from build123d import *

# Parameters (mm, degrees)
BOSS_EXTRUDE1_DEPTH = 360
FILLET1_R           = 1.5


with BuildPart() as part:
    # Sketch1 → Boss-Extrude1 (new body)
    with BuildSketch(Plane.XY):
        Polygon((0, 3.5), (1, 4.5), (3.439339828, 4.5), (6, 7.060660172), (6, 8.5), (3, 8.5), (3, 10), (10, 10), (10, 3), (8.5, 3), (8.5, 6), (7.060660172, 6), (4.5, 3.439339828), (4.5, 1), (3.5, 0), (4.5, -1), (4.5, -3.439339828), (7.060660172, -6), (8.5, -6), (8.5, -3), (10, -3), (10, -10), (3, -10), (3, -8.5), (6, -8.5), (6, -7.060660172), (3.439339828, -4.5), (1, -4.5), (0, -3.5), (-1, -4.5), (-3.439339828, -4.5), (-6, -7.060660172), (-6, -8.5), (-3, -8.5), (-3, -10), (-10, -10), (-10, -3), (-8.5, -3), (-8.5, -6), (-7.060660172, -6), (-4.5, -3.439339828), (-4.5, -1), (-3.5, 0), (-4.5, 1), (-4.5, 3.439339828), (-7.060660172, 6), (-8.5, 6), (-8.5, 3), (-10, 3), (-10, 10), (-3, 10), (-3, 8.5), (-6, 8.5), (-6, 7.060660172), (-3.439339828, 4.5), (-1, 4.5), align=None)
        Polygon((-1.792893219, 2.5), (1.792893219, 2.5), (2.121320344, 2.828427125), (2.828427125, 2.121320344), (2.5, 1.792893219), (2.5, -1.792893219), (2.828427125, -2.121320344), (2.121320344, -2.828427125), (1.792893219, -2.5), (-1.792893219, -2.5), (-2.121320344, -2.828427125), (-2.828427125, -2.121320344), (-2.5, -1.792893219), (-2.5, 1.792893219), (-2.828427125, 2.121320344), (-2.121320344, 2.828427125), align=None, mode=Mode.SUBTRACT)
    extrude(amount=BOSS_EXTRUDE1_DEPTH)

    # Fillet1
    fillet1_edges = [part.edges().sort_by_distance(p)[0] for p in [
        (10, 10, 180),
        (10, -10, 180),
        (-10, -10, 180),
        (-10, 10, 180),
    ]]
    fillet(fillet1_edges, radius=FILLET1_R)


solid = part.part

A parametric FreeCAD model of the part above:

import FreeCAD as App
import Part
import Sketcher
Q = App.Units.Quantity


def edges_at(feature, points):
    """Names of the edges that pass closest to the given points."""
    edges = feature.Shape.Edges
    near = lambda p: min(range(len(edges)), key=lambda i: edges[i].distToShape(Part.Vertex(*p))[0])
    return sorted({f"Edge{near(p) + 1}" for p in points})

doc = App.newDocument("Part")
body = doc.addObject("PartDesign::Body", "Body")

sketch1 = doc.addObject("Sketcher::SketchObject", "Sketch")
body.addObject(sketch1)
sketch1.AttachmentSupport = (doc.XY_Plane, [""])
sketch1.MapMode = "FlatFace"
sketch1.addGeometry(Part.LineSegment(App.Vector(1, 4.5, 0), App.Vector(0, 3.5, 0)), False)
sketch1.addGeometry(Part.LineSegment(App.Vector(0, 3.5, 0), App.Vector(-1, 4.5, 0)), False)
sketch1.addGeometry(Part.LineSegment(App.Vector(-1, 4.5, 0), App.Vector(-3.44, 4.5, 0)), False)
sketch1.addGeometry(Part.LineSegment(App.Vector(-3.44, 4.5, 0), App.Vector(-6, 7.06, 0)), False)
sketch1.addGeometry(Part.LineSegment(App.Vector(-6, 7.06, 0), App.Vector(-6, 8.5, 0)), False)
sketch1.addGeometry(Part.LineSegment(App.Vector(-6, 8.5, 0), App.Vector(-3, 8.5, 0)), False)
sketch1.addGeometry(Part.LineSegment(App.Vector(-3, 8.5, 0), App.Vector(-3, 10, 0)), False)
sketch1.addGeometry(Part.LineSegment(App.Vector(-3, 10, 0), App.Vector(-10, 10, 0)), False)
sketch1.addGeometry(Part.LineSegment(App.Vector(-10, 10, 0), App.Vector(-10, 3, 0)), False)
sketch1.addGeometry(Part.LineSegment(App.Vector(-10, 3, 0), App.Vector(-8.5, 3, 0)), False)
sketch1.addGeometry(Part.LineSegment(App.Vector(-8.5, 3, 0), App.Vector(-8.5, 6, 0)), False)
sketch1.addGeometry(Part.LineSegment(App.Vector(-8.5, 6, 0), App.Vector(-7.06, 6, 0)), False)
sketch1.addGeometry(Part.LineSegment(App.Vector(-7.06, 6, 0), App.Vector(-4.5, 3.44, 0)), False)
sketch1.addGeometry(Part.LineSegment(App.Vector(-4.5, 3.44, 0), App.Vector(-4.5, 1, 0)), False)
sketch1.addGeometry(Part.LineSegment(App.Vector(-4.5, 1, 0), App.Vector(-3.5, 0, 0)), False)
sketch1.addGeometry(Part.LineSegment(App.Vector(-3.5, 0, 0), App.Vector(-4.5, -1, 0)), False)
sketch1.addGeometry(Part.LineSegment(App.Vector(-4.5, -1, 0), App.Vector(-4.5, -3.44, 0)), False)
sketch1.addGeometry(Part.LineSegment(App.Vector(-4.5, -3.44, 0), App.Vector(-7.06, -6, 0)), False)
sketch1.addGeometry(Part.LineSegment(App.Vector(-7.06, -6, 0), App.Vector(-8.5, -6, 0)), False)
sketch1.addGeometry(Part.LineSegment(App.Vector(-8.5, -6, 0), App.Vector(-8.5, -3, 0)), False)
sketch1.addGeometry(Part.LineSegment(App.Vector(-8.5, -3, 0), App.Vector(-10, -3, 0)), False)
sketch1.addGeometry(Part.LineSegment(App.Vector(-10, -3, 0), App.Vector(-10, -10, 0)), False)
sketch1.addGeometry(Part.LineSegment(App.Vector(-10, -10, 0), App.Vector(-3, -10, 0)), False)
sketch1.addGeometry(Part.LineSegment(App.Vector(-3, -10, 0), App.Vector(-3, -8.5, 0)), False)
sketch1.addGeometry(Part.LineSegment(App.Vector(-3, -8.5, 0), App.Vector(-6, -8.5, 0)), False)
sketch1.addGeometry(Part.LineSegment(App.Vector(-6, -8.5, 0), App.Vector(-6, -7.06, 0)), False)
sketch1.addGeometry(Part.LineSegment(App.Vector(-6, -7.06, 0), App.Vector(-3.44, -4.5, 0)), False)
sketch1.addGeometry(Part.LineSegment(App.Vector(-3.44, -4.5, 0), App.Vector(-1, -4.5, 0)), False)
sketch1.addGeometry(Part.LineSegment(App.Vector(-1, -4.5, 0), App.Vector(0, -3.5, 0)), False)
sketch1.addGeometry(Part.LineSegment(App.Vector(0, -3.5, 0), App.Vector(1, -4.5, 0)), False)
sketch1.addGeometry(Part.LineSegment(App.Vector(1, -4.5, 0), App.Vector(3.44, -4.5, 0)), False)
sketch1.addGeometry(Part.LineSegment(App.Vector(3.44, -4.5, 0), App.Vector(6, -7.06, 0)), False)
sketch1.addGeometry(Part.LineSegment(App.Vector(6, -7.06, 0), App.Vector(6, -8.5, 0)), False)
sketch1.addGeometry(Part.LineSegment(App.Vector(6, -8.5, 0), App.Vector(3, -8.5, 0)), False)
sketch1.addGeometry(Part.LineSegment(App.Vector(3, -8.5, 0), App.Vector(3, -10, 0)), False)
sketch1.addGeometry(Part.LineSegment(App.Vector(3, -10, 0), App.Vector(10, -10, 0)), False)
sketch1.addGeometry(Part.LineSegment(App.Vector(10, -10, 0), App.Vector(10, -3, 0)), False)
sketch1.addGeometry(Part.LineSegment(App.Vector(10, -3, 0), App.Vector(8.5, -3, 0)), False)
sketch1.addGeometry(Part.LineSegment(App.Vector(8.5, -3, 0), App.Vector(8.5, -6, 0)), False)
sketch1.addGeometry(Part.LineSegment(App.Vector(8.5, -6, 0), App.Vector(7.06, -6, 0)), False)
sketch1.addGeometry(Part.LineSegment(App.Vector(7.06, -6, 0), App.Vector(4.5, -3.44, 0)), False)
sketch1.addGeometry(Part.LineSegment(App.Vector(4.5, -3.44, 0), App.Vector(4.5, -1, 0)), False)
sketch1.addGeometry(Part.LineSegment(App.Vector(4.5, -1, 0), App.Vector(3.5, 0, 0)), False)
sketch1.addGeometry(Part.LineSegment(App.Vector(3.5, 0, 0), App.Vector(4.5, 1, 0)), False)
sketch1.addGeometry(Part.LineSegment(App.Vector(4.5, 1, 0), App.Vector(4.5, 3.44, 0)), False)
sketch1.addGeometry(Part.LineSegment(App.Vector(4.5, 3.44, 0), App.Vector(7.06, 6, 0)), False)
sketch1.addGeometry(Part.LineSegment(App.Vector(7.06, 6, 0), App.Vector(8.5, 6, 0)), False)
sketch1.addGeometry(Part.LineSegment(App.Vector(8.5, 6, 0), App.Vector(8.5, 3, 0)), False)
sketch1.addGeometry(Part.LineSegment(App.Vector(8.5, 3, 0), App.Vector(10, 3, 0)), False)
sketch1.addGeometry(Part.LineSegment(App.Vector(10, 3, 0), App.Vector(10, 10, 0)), False)
sketch1.addGeometry(Part.LineSegment(App.Vector(10, 10, 0), App.Vector(3, 10, 0)), False)
sketch1.addGeometry(Part.LineSegment(App.Vector(3, 10, 0), App.Vector(3, 8.5, 0)), False)
sketch1.addGeometry(Part.LineSegment(App.Vector(3, 8.5, 0), App.Vector(6, 8.5, 0)), False)
sketch1.addGeometry(Part.LineSegment(App.Vector(6, 8.5, 0), App.Vector(6, 7.06, 0)), False)
sketch1.addGeometry(Part.LineSegment(App.Vector(6, 7.06, 0), App.Vector(3.44, 4.5, 0)), False)
sketch1.addGeometry(Part.LineSegment(App.Vector(3.44, 4.5, 0), App.Vector(1, 4.5, 0)), False)
sketch1.addGeometry(Part.LineSegment(App.Vector(-1.79, 2.5, 0), App.Vector(1.79, 2.5, 0)), False)
sketch1.addGeometry(Part.LineSegment(App.Vector(1.79, 2.5, 0), App.Vector(2.12, 2.83, 0)), False)
sketch1.addGeometry(Part.LineSegment(App.Vector(2.12, 2.83, 0), App.Vector(2.83, 2.12, 0)), False)
sketch1.addGeometry(Part.LineSegment(App.Vector(2.83, 2.12, 0), App.Vector(2.5, 1.79, 0)), False)
sketch1.addGeometry(Part.LineSegment(App.Vector(2.5, 1.79, 0), App.Vector(2.5, -1.79, 0)), False)
sketch1.addGeometry(Part.LineSegment(App.Vector(2.5, -1.79, 0), App.Vector(2.83, -2.12, 0)), False)
sketch1.addGeometry(Part.LineSegment(App.Vector(2.83, -2.12, 0), App.Vector(2.12, -2.83, 0)), False)
sketch1.addGeometry(Part.LineSegment(App.Vector(2.12, -2.83, 0), App.Vector(1.79, -2.5, 0)), False)
sketch1.addGeometry(Part.LineSegment(App.Vector(1.79, -2.5, 0), App.Vector(-1.79, -2.5, 0)), False)
sketch1.addGeometry(Part.LineSegment(App.Vector(-1.79, -2.5, 0), App.Vector(-2.12, -2.83, 0)), False)
sketch1.addGeometry(Part.LineSegment(App.Vector(-2.12, -2.83, 0), App.Vector(-2.83, -2.12, 0)), False)
sketch1.addGeometry(Part.LineSegment(App.Vector(-2.83, -2.12, 0), App.Vector(-2.5, -1.79, 0)), False)
sketch1.addGeometry(Part.LineSegment(App.Vector(-2.5, -1.79, 0), App.Vector(-2.5, 1.79, 0)), False)
sketch1.addGeometry(Part.LineSegment(App.Vector(-2.5, 1.79, 0), App.Vector(-2.83, 2.12, 0)), False)
sketch1.addGeometry(Part.LineSegment(App.Vector(-2.83, 2.12, 0), App.Vector(-2.12, 2.83, 0)), False)
sketch1.addGeometry(Part.LineSegment(App.Vector(-2.12, 2.83, 0), App.Vector(-1.79, 2.5, 0)), False)
sketch1.addConstraint(Sketcher.Constraint("Coincident", 0, 2, 1, 1))
sketch1.addConstraint(Sketcher.Constraint("Coincident", 1, 2, 2, 1))
sketch1.addConstraint(Sketcher.Constraint("Coincident", 2, 2, 3, 1))
sketch1.addConstraint(Sketcher.Constraint("Coincident", 3, 2, 4, 1))
sketch1.addConstraint(Sketcher.Constraint("Coincident", 4, 2, 5, 1))
sketch1.addConstraint(Sketcher.Constraint("Coincident", 5, 2, 6, 1))
sketch1.addConstraint(Sketcher.Constraint("Coincident", 6, 2, 7, 1))
sketch1.addConstraint(Sketcher.Constraint("Coincident", 7, 2, 8, 1))
sketch1.addConstraint(Sketcher.Constraint("Coincident", 8, 2, 9, 1))
sketch1.addConstraint(Sketcher.Constraint("Coincident", 9, 2, 10, 1))
sketch1.addConstraint(Sketcher.Constraint("Coincident", 10, 2, 11, 1))
sketch1.addConstraint(Sketcher.Constraint("Coincident", 11, 2, 12, 1))
sketch1.addConstraint(Sketcher.Constraint("Coincident", 12, 2, 13, 1))
sketch1.addConstraint(Sketcher.Constraint("Coincident", 13, 2, 14, 1))
sketch1.addConstraint(Sketcher.Constraint("Coincident", 14, 2, 15, 1))
sketch1.addConstraint(Sketcher.Constraint("Coincident", 15, 2, 16, 1))
sketch1.addConstraint(Sketcher.Constraint("Coincident", 16, 2, 17, 1))
sketch1.addConstraint(Sketcher.Constraint("Coincident", 17, 2, 18, 1))
sketch1.addConstraint(Sketcher.Constraint("Coincident", 18, 2, 19, 1))
sketch1.addConstraint(Sketcher.Constraint("Coincident", 19, 2, 20, 1))
sketch1.addConstraint(Sketcher.Constraint("Coincident", 20, 2, 21, 1))
sketch1.addConstraint(Sketcher.Constraint("Coincident", 21, 2, 22, 1))
sketch1.addConstraint(Sketcher.Constraint("Coincident", 22, 2, 23, 1))
sketch1.addConstraint(Sketcher.Constraint("Coincident", 23, 2, 24, 1))
sketch1.addConstraint(Sketcher.Constraint("Coincident", 24, 2, 25, 1))
sketch1.addConstraint(Sketcher.Constraint("Coincident", 25, 2, 26, 1))
sketch1.addConstraint(Sketcher.Constraint("Coincident", 26, 2, 27, 1))
sketch1.addConstraint(Sketcher.Constraint("Coincident", 27, 2, 28, 1))
sketch1.addConstraint(Sketcher.Constraint("Coincident", 28, 2, 29, 1))
sketch1.addConstraint(Sketcher.Constraint("Coincident", 29, 2, 30, 1))
sketch1.addConstraint(Sketcher.Constraint("Coincident", 30, 2, 31, 1))
sketch1.addConstraint(Sketcher.Constraint("Coincident", 31, 2, 32, 1))
sketch1.addConstraint(Sketcher.Constraint("Coincident", 32, 2, 33, 1))
sketch1.addConstraint(Sketcher.Constraint("Coincident", 33, 2, 34, 1))
sketch1.addConstraint(Sketcher.Constraint("Coincident", 34, 2, 35, 1))
sketch1.addConstraint(Sketcher.Constraint("Coincident", 35, 2, 36, 1))
sketch1.addConstraint(Sketcher.Constraint("Coincident", 36, 2, 37, 1))
sketch1.addConstraint(Sketcher.Constraint("Coincident", 37, 2, 38, 1))
sketch1.addConstraint(Sketcher.Constraint("Coincident", 38, 2, 39, 1))
sketch1.addConstraint(Sketcher.Constraint("Coincident", 39, 2, 40, 1))
sketch1.addConstraint(Sketcher.Constraint("Coincident", 40, 2, 41, 1))
sketch1.addConstraint(Sketcher.Constraint("Coincident", 41, 2, 42, 1))
sketch1.addConstraint(Sketcher.Constraint("Coincident", 42, 2, 43, 1))
sketch1.addConstraint(Sketcher.Constraint("Coincident", 43, 2, 44, 1))
sketch1.addConstraint(Sketcher.Constraint("Coincident", 44, 2, 45, 1))
sketch1.addConstraint(Sketcher.Constraint("Coincident", 45, 2, 46, 1))
sketch1.addConstraint(Sketcher.Constraint("Coincident", 46, 2, 47, 1))
sketch1.addConstraint(Sketcher.Constraint("Coincident", 47, 2, 48, 1))
sketch1.addConstraint(Sketcher.Constraint("Coincident", 48, 2, 49, 1))
sketch1.addConstraint(Sketcher.Constraint("Coincident", 49, 2, 50, 1))
sketch1.addConstraint(Sketcher.Constraint("Coincident", 50, 2, 51, 1))
sketch1.addConstraint(Sketcher.Constraint("Coincident", 51, 2, 52, 1))
sketch1.addConstraint(Sketcher.Constraint("Coincident", 52, 2, 53, 1))
sketch1.addConstraint(Sketcher.Constraint("Coincident", 53, 2, 54, 1))
sketch1.addConstraint(Sketcher.Constraint("Coincident", 54, 2, 55, 1))
sketch1.addConstraint(Sketcher.Constraint("Coincident", 55, 2, 0, 1))
sketch1.addConstraint(Sketcher.Constraint("Coincident", 56, 2, 57, 1))
sketch1.addConstraint(Sketcher.Constraint("Coincident", 57, 2, 58, 1))
sketch1.addConstraint(Sketcher.Constraint("Coincident", 58, 2, 59, 1))
sketch1.addConstraint(Sketcher.Constraint("Coincident", 59, 2, 60, 1))
sketch1.addConstraint(Sketcher.Constraint("Coincident", 60, 2, 61, 1))
sketch1.addConstraint(Sketcher.Constraint("Coincident", 61, 2, 62, 1))
sketch1.addConstraint(Sketcher.Constraint("Coincident", 62, 2, 63, 1))
sketch1.addConstraint(Sketcher.Constraint("Coincident", 63, 2, 64, 1))
sketch1.addConstraint(Sketcher.Constraint("Coincident", 64, 2, 65, 1))
sketch1.addConstraint(Sketcher.Constraint("Coincident", 65, 2, 66, 1))
sketch1.addConstraint(Sketcher.Constraint("Coincident", 66, 2, 67, 1))
sketch1.addConstraint(Sketcher.Constraint("Coincident", 67, 2, 68, 1))
sketch1.addConstraint(Sketcher.Constraint("Coincident", 68, 2, 69, 1))
sketch1.addConstraint(Sketcher.Constraint("Coincident", 69, 2, 70, 1))
sketch1.addConstraint(Sketcher.Constraint("Coincident", 70, 2, 71, 1))
sketch1.addConstraint(Sketcher.Constraint("Coincident", 71, 2, 56, 1))
sketch1.addConstraint(Sketcher.Constraint("Horizontal", 2))
sketch1.addConstraint(Sketcher.Constraint("Vertical", 4))
sketch1.addConstraint(Sketcher.Constraint("Horizontal", 5))
sketch1.addConstraint(Sketcher.Constraint("Vertical", 6))
sketch1.addConstraint(Sketcher.Constraint("Horizontal", 7))
sketch1.addConstraint(Sketcher.Constraint("Vertical", 8))
sketch1.addConstraint(Sketcher.Constraint("Horizontal", 9))
sketch1.addConstraint(Sketcher.Constraint("Vertical", 10))
sketch1.addConstraint(Sketcher.Constraint("Horizontal", 11))
sketch1.addConstraint(Sketcher.Constraint("Vertical", 13))
sketch1.addConstraint(Sketcher.Constraint("Vertical", 16))
sketch1.addConstraint(Sketcher.Constraint("Horizontal", 18))
sketch1.addConstraint(Sketcher.Constraint("Vertical", 19))
sketch1.addConstraint(Sketcher.Constraint("Horizontal", 20))
sketch1.addConstraint(Sketcher.Constraint("Vertical", 21))
sketch1.addConstraint(Sketcher.Constraint("Horizontal", 22))
sketch1.addConstraint(Sketcher.Constraint("Vertical", 23))
sketch1.addConstraint(Sketcher.Constraint("Horizontal", 24))
sketch1.addConstraint(Sketcher.Constraint("Vertical", 25))
sketch1.addConstraint(Sketcher.Constraint("Horizontal", 27))
sketch1.addConstraint(Sketcher.Constraint("Horizontal", 30))
sketch1.addConstraint(Sketcher.Constraint("Vertical", 32))
sketch1.addConstraint(Sketcher.Constraint("Horizontal", 33))
sketch1.addConstraint(Sketcher.Constraint("Vertical", 34))
sketch1.addConstraint(Sketcher.Constraint("Horizontal", 35))
sketch1.addConstraint(Sketcher.Constraint("Vertical", 36))
sketch1.addConstraint(Sketcher.Constraint("Horizontal", 37))
sketch1.addConstraint(Sketcher.Constraint("Vertical", 38))
sketch1.addConstraint(Sketcher.Constraint("Horizontal", 39))
sketch1.addConstraint(Sketcher.Constraint("Vertical", 41))
sketch1.addConstraint(Sketcher.Constraint("Vertical", 44))
sketch1.addConstraint(Sketcher.Constraint("Horizontal", 46))
sketch1.addConstraint(Sketcher.Constraint("Vertical", 47))
sketch1.addConstraint(Sketcher.Constraint("Horizontal", 48))
sketch1.addConstraint(Sketcher.Constraint("Vertical", 49))
sketch1.addConstraint(Sketcher.Constraint("Horizontal", 50))
sketch1.addConstraint(Sketcher.Constraint("Vertical", 51))
sketch1.addConstraint(Sketcher.Constraint("Horizontal", 52))
sketch1.addConstraint(Sketcher.Constraint("Vertical", 53))
sketch1.addConstraint(Sketcher.Constraint("Horizontal", 55))
sketch1.addConstraint(Sketcher.Constraint("Horizontal", 56))
sketch1.addConstraint(Sketcher.Constraint("Vertical", 60))
sketch1.addConstraint(Sketcher.Constraint("Horizontal", 64))
sketch1.addConstraint(Sketcher.Constraint("Vertical", 68))
sketch1.addConstraint(Sketcher.Constraint("Symmetric", 0, 2, 28, 2, -1, 1))
sketch1.addConstraint(Sketcher.Constraint("Symmetric", 1, 2, 29, 2, -1, 1))
sketch1.addConstraint(Sketcher.Constraint("Symmetric", 3, 2, 31, 2, -1, 1))
sketch1.addConstraint(Sketcher.Constraint("Symmetric", 5, 2, 33, 2, -1, 1))
sketch1.addConstraint(Sketcher.Constraint("Symmetric", 7, 2, 35, 2, -1, 1))
sketch1.addConstraint(Sketcher.Constraint("Symmetric", 9, 2, 37, 2, -1, 1))
sketch1.addConstraint(Sketcher.Constraint("Symmetric", 11, 2, 39, 2, -1, 1))
sketch1.addConstraint(Sketcher.Constraint("Symmetric", 12, 2, 40, 2, -1, 1))
sketch1.addConstraint(Sketcher.Constraint("Symmetric", 14, 2, 42, 2, -1, 1))
sketch1.addConstraint(Sketcher.Constraint("Symmetric", 15, 2, 43, 2, -1, 1))
sketch1.addConstraint(Sketcher.Constraint("Symmetric", 17, 2, 45, 2, -1, 1))
sketch1.addConstraint(Sketcher.Constraint("Symmetric", 19, 2, 47, 2, -1, 1))
sketch1.addConstraint(Sketcher.Constraint("Symmetric", 21, 2, 49, 2, -1, 1))
sketch1.addConstraint(Sketcher.Constraint("Symmetric", 23, 2, 51, 2, -1, 1))
sketch1.addConstraint(Sketcher.Constraint("Symmetric", 25, 2, 53, 2, -1, 1))
sketch1.addConstraint(Sketcher.Constraint("Symmetric", 26, 2, 54, 2, -1, 1))
sketch1.addConstraint(Sketcher.Constraint("Symmetric", 56, 2, 64, 2, -1, 1))
sketch1.addConstraint(Sketcher.Constraint("Symmetric", 57, 2, 65, 2, -1, 1))
sketch1.addConstraint(Sketcher.Constraint("Symmetric", 58, 2, 66, 2, -1, 1))
sketch1.addConstraint(Sketcher.Constraint("Symmetric", 59, 2, 67, 2, -1, 1))
sketch1.addConstraint(Sketcher.Constraint("Symmetric", 61, 2, 69, 2, -1, 1))
sketch1.addConstraint(Sketcher.Constraint("Symmetric", 62, 2, 70, 2, -1, 1))
sketch1.addConstraint(Sketcher.Constraint("Symmetric", 27, 2, 29, 2, -2))
sketch1.addConstraint(Sketcher.Constraint("Symmetric", 25, 2, 31, 2, -2))
sketch1.addConstraint(Sketcher.Constraint("Symmetric", 23, 2, 33, 2, -2))
sketch1.addConstraint(Sketcher.Constraint("Symmetric", 21, 2, 35, 2, -2))
sketch1.addConstraint(Sketcher.Constraint("Symmetric", 19, 2, 37, 2, -2))
sketch1.addConstraint(Sketcher.Constraint("Symmetric", 17, 2, 39, 2, -2))
sketch1.addConstraint(Sketcher.Constraint("Symmetric", 16, 2, 40, 2, -2))
sketch1.addConstraint(Sketcher.Constraint("Symmetric", 62, 2, 65, 2, -2))
sketch1.addConstraint(Sketcher.Constraint("Symmetric", 61, 2, 66, 2, -2))
sketch1.addConstraint(Sketcher.Constraint("PointOnObject", 0, 2, -2))
sketch1.addConstraint(Sketcher.Constraint("PointOnObject", 14, 2, -1))
sketch1.addConstraint(Sketcher.Constraint("Perpendicular", 0, 1))
sketch1.addConstraint(Sketcher.Constraint("Parallel", 1, 3))
sketch1.addConstraint(Sketcher.Constraint("Parallel", 3, 12))
sketch1.addConstraint(Sketcher.Constraint("Parallel", 12, 14))
sketch1.addConstraint(Sketcher.Constraint("Perpendicular", 14, 15))
sketch1.addConstraint(Sketcher.Constraint("Parallel", 15, 17))
sketch1.addConstraint(Sketcher.Constraint("Parallel", 17, 26))
sketch1.addConstraint(Sketcher.Constraint("Parallel", 29, 31))
sketch1.addConstraint(Sketcher.Constraint("Parallel", 40, 42))
sketch1.addConstraint(Sketcher.Constraint("Parallel", 43, 45))
sketch1.addConstraint(Sketcher.Constraint("Parallel", 54, 57))
sketch1.addConstraint(Sketcher.Constraint("Perpendicular", 57, 58))
sketch1.addConstraint(Sketcher.Constraint("Perpendicular", 58, 59))
sketch1.addConstraint(Sketcher.Constraint("Perpendicular", 59, 61))
sketch1.addConstraint(Sketcher.Constraint("Perpendicular", 62, 63))
sketch1.addConstraint(Sketcher.Constraint("Perpendicular", 67, 69))
sketch1.addConstraint(Sketcher.Constraint("Perpendicular", 70, 71))
sketch1.addConstraint(Sketcher.Constraint("Equal", 46, 4))
sketch1.addConstraint(Sketcher.Constraint("Equal", 48, 6))
sketch1.addConstraint(Sketcher.Constraint("Equal", 50, 8))
sketch1.addConstraint(Sketcher.Constraint("Equal", 52, 10))
sketch1.addConstraint(Sketcher.Constraint("Equal", 55, 13))
sketch1.addConstraint(Sketcher.Constraint("Equal", 64, 60))
sketch1.addConstraint(Sketcher.Constraint("Equal", 3, 12))
sketch1.addConstraint(Sketcher.Constraint("Equal", 1, 14))
sketch1.addConstraint(Sketcher.Constraint("Equal", 57, 59))
sketch1.addConstraint(Sketcher.Constraint("DistanceX", 5, 1, 5, 2, Q("3 mm")))
sketch1.addConstraint(Sketcher.Constraint("DistanceX", 7, 2, 7, 1, Q("7 mm")))
sketch1.addConstraint(Sketcher.Constraint("Distance", 58, Q("1 mm")))
sketch1.addConstraint(Sketcher.Constraint("DistanceX", 9, 1, 9, 2, Q("1.5 mm")))
sketch1.addConstraint(Sketcher.Constraint("DistanceX", 1, 2, -1, 1, Q("1 mm")))
sketch1.addConstraint(Sketcher.Constraint("DistanceX", 3, 2, -1, 1, Q("6 mm")))
sketch1.addConstraint(Sketcher.Constraint("DistanceY", -1, 1, 0, 2, Q("3.5 mm")))
sketch1.addConstraint(Sketcher.Constraint("DistanceY", -1, 1, 56, 2, Q("2.5 mm")))
sketch1.addConstraint(Sketcher.Constraint("DistanceX", 2, 2, 2, 1, Q("2.43934 mm")))
sketch1.addConstraint(Sketcher.Constraint("DistanceX", -1, 1, 57, 2, Q("2.12132 mm")))
pad1 = doc.addObject("PartDesign::Pad", "Pad")
body.addObject(pad1)
pad1.Profile = sketch1
pad1.Length = 360
doc.recompute()

fillet = doc.addObject("PartDesign::Fillet", "Fillet")
body.addObject(fillet)
fillet.Base = (pad1, edges_at(pad1, [
    (10, 10, 180),
    (10, -10, 180),
    (-10, -10, 180),
    (-10, 10, 180),
]))
fillet.Radius = 1.5

doc.recompute()
